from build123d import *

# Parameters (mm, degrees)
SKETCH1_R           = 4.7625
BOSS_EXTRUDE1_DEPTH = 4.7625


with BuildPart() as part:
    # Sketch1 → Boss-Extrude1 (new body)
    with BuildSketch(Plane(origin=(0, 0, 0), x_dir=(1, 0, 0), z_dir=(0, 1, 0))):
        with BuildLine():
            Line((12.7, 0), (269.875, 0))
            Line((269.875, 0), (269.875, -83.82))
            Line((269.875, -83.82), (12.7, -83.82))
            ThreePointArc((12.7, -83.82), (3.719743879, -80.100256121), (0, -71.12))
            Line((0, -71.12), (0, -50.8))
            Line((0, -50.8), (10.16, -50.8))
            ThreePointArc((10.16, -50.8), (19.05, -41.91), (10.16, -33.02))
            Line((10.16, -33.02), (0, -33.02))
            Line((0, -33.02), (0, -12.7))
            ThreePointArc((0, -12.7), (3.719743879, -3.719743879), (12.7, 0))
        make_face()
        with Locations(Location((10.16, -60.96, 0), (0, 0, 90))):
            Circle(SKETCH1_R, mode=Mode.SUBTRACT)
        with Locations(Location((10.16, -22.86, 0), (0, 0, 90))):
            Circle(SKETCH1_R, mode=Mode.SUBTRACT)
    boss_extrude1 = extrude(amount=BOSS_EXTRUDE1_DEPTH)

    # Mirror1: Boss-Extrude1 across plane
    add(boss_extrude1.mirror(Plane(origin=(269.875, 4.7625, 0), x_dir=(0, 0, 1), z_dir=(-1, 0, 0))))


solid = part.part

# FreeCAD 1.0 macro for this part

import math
import FreeCAD as App
import Part
import Sketcher
Q = App.Units.Quantity

doc = App.newDocument("Part")
body = doc.addObject("PartDesign::Body", "Body")

# Sketch on XZ plane
sketch1 = doc.addObject("Sketcher::SketchObject", "Sketch")
body.addObject(sketch1)
sketch1.AttachmentSupport = (doc.XZ_Plane, [""])
sketch1.MapMode = "FlatFace"
sketch1.addGeometry(Part.LineSegment(App.Vector(269.9, 0, 0), App.Vector(12.7, 0, 0)), False)
sketch1.addGeometry(Part.ArcOfCircle(Part.Circle(App.Vector(12.7, 12.7, 0), App.Vector(0, 0, 1), 12.7), math.radians(180), math.radians(270)), False)
sketch1.addGeometry(Part.LineSegment(App.Vector(0, 12.7, 0), App.Vector(0, 33, 0)), False)
sketch1.addGeometry(Part.LineSegment(App.Vector(0, 33, 0), App.Vector(10.2, 33, 0)), False)
sketch1.addGeometry(Part.ArcOfCircle(Part.Circle(App.Vector(10.2, 41.9, 0), App.Vector(0, 0, 1), 8.9), math.radians(-90), math.radians(90)), False)
sketch1.addGeometry(Part.LineSegment(App.Vector(10.2, 50.8, 0), App.Vector(0, 50.8, 0)), False)
sketch1.addGeometry(Part.LineSegment(App.Vector(0, 50.8, 0), App.Vector(0, 71.1, 0)), False)
sketch1.addGeometry(Part.ArcOfCircle(Part.Circle(App.Vector(12.7, 71.1, 0), App.Vector(0, 0, 1), 12.7), math.radians(90), math.radians(180)), False)
sketch1.addGeometry(Part.LineSegment(App.Vector(12.7, 83.8, 0), App.Vector(269.9, 83.8, 0)), False)
sketch1.addGeometry(Part.LineSegment(App.Vector(269.9, 83.8, 0), App.Vector(269.9, 0, 0)), False)
sketch1.addGeometry(Part.Circle(App.Vector(10.2, 61, 0), App.Vector(0, 0, 1), 4.8), False)
sketch1.addGeometry(Part.Circle(App.Vector(10.2, 22.9, 0), App.Vector(0, 0, 1), 4.8), False)
sketch1.addConstraint(Sketcher.Constraint("Tangent", 0, 2, 1, 2))
sketch1.addConstraint(Sketcher.Constraint("Tangent", 1, 1, 2, 1))
sketch1.addConstraint(Sketcher.Constraint("Coincident", 2, 2, 3, 1))
sketch1.addConstraint(Sketcher.Constraint("Tangent", 3, 2, 4, 1))
sketch1.addConstraint(Sketcher.Constraint("Tangent", 4, 2, 5, 1))
sketch1.addConstraint(Sketcher.Constraint("Coincident", 5, 2, 6, 1))
sketch1.addConstraint(Sketcher.Constraint("Tangent", 6, 2, 7, 2))
sketch1.addConstraint(Sketcher.Constraint("Tangent", 7, 1, 8, 1))
sketch1.addConstraint(Sketcher.Constraint("Coincident", 8, 2, 9, 1))
sketch1.addConstraint(Sketcher.Constraint("Coincident", 9, 2, 0, 1))
sketch1.addConstraint(Sketcher.Constraint("Horizontal", 0))
sketch1.addConstraint(Sketcher.Constraint("Vertical", 2))
sketch1.addConstraint(Sketcher.Constraint("Horizontal", 3))
sketch1.addConstraint(Sketcher.Constraint("Horizontal", 5))
sketch1.addConstraint(Sketcher.Constraint("Vertical", 6))
sketch1.addConstraint(Sketcher.Constraint("Horizontal", 8))
sketch1.addConstraint(Sketcher.Constraint("Vertical", 9))
sketch1.addConstraint(Sketcher.Constraint("Equal", 1, 7))
sketch1.addConstraint(Sketcher.Constraint("Equal", 10, 11))
sketch1.addConstraint(Sketcher.Constraint("PointOnObject", 0, 2, -1))
sketch1.addConstraint(Sketcher.Constraint("PointOnObject", 1, 1, -2))
sketch1.addConstraint(Sketcher.Constraint("PointOnObject", 5, 2, -2))
sketch1.addConstraint(Sketcher.Constraint("Vertical", 4, 3, 10, 3))
sketch1.addConstraint(Sketcher.Constraint("Vertical", 10, 3, 11, 3))
sketch1.addConstraint(Sketcher.Constraint("Equal", 2, 6))
sketch1.addConstraint(Sketcher.Constraint("Radius", 1, Q("0.5 in")))
sketch1.addConstraint(Sketcher.Constraint("Radius", 4, Q("0.35 in")))
sketch1.addConstraint(Sketcher.Constraint("Diameter", 10, Q("0.375 in")))
sketch1.addConstraint(Sketcher.Constraint("DistanceX", 3, 1, 3, 2, Q("0.4 in")))
sketch1.addConstraint(Sketcher.Constraint("DistanceY", 2, 1, 2, 2, Q("0.8 in")))
sketch1.addConstraint(Sketcher.Constraint("DistanceY", -1, 1, 10, 3, Q("2.4 in")))
sketch1.addConstraint(Sketcher.Constraint("DistanceY", -1, 1, 11, 3, Q("0.9 in")))
sketch1.addConstraint(Sketcher.Constraint("DistanceX", 0, 2, 0, 1, Q("10.125 in")))
pad1 = doc.addObject("PartDesign::Pad", "Pad")
body.addObject(pad1)
pad1.Profile = sketch1
pad1.Length = Q("0.1875 in")
pad1.Reversed = True
doc.recompute()

datumplane = doc.addObject("PartDesign::Plane", "DatumPlane")
body.addObject(datumplane)
datumplane.AttachmentSupport = (doc.YZ_Plane, [""])
datumplane.MapMode = "FlatFace"
datumplane.AttachmentOffset = App.Placement(App.Vector(0, 0, 10.625 * 25.4), App.Rotation())
mirrored = doc.addObject("PartDesign::Mirrored", "Mirrored")
body.addObject(mirrored)
mirrored.Originals = [pad1]
mirrored.MirrorPlane = (datumplane, [""])
body.Tip = mirrored

doc.recompute()
